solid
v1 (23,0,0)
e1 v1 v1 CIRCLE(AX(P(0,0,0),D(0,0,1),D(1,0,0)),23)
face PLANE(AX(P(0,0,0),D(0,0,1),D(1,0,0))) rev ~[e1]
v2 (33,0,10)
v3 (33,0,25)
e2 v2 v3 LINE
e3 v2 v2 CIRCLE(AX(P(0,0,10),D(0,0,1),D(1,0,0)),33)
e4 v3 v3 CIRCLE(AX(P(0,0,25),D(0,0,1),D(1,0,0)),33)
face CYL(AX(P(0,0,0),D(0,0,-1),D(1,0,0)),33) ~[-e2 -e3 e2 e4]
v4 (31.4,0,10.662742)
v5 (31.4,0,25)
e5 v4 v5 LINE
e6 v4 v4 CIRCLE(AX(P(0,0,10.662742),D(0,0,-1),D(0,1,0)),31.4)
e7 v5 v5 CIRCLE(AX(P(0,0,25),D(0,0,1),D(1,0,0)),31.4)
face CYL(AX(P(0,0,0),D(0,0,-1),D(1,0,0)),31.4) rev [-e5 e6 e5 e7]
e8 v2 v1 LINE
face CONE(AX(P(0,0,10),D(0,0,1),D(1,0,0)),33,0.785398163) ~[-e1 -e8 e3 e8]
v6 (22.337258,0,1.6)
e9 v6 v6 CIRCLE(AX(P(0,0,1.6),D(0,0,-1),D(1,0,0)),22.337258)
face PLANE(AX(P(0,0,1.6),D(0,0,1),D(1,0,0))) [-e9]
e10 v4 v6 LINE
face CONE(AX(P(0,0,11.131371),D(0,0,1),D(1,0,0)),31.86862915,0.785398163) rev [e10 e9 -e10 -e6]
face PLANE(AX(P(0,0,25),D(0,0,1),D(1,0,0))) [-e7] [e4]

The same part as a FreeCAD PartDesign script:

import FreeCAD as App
import Part
import Sketcher


def edges_at(feature, points):
    """Names of the edges that pass closest to the given points."""
    edges = feature.Shape.Edges
    near = lambda p: min(range(len(edges)), key=lambda i: edges[i].distToShape(Part.Vertex(*p))[0])
    return sorted({f"Edge{near(p) + 1}" for p in points})


def faces_at(feature, points):
    """Names of the faces that lie closest to the given points."""
    faces = feature.Shape.Faces
    near = lambda p: min(range(len(faces)), key=lambda i: faces[i].distToShape(Part.Vertex(*p))[0])
    return sorted({f"Face{near(p) + 1}" for p in points})

doc = App.newDocument("Part")
body = doc.addObject("PartDesign::Body", "Body")

sketch1 = body.newObject("Sketcher::SketchObject", "Sketch")
sketch1.AttachmentSupport = (doc.getObject("XY_Plane"), [""])
sketch1.MapMode = "FlatFace"
sketch1.addGeometry(Part.Circle(App.Vector(0, 0, 0), App.Vector(0, 0, 1), 33), False)
sketch1.addConstraint(Sketcher.Constraint("Coincident", 0, 3, -1, 1))
sketch1.addConstraint(Sketcher.Constraint("Diameter", 0, 66.0))
pad1 = body.newObject("PartDesign::Pad", "Pad")
pad1.Profile = sketch1
pad1.Length = 25
doc.recompute()

chamfer = body.newObject("PartDesign::Chamfer", "Chamfer")
chamfer.Base = (pad1, edges_at(pad1, [(-33, 0, 0)]))
chamfer.Size = 10
doc.recompute()

thickness = body.newObject("PartDesign::Thickness", "Thickness")
thickness.Base = (chamfer, faces_at(chamfer, [(0, 0, 25)]))
thickness.Value = 1.6
thickness.Reversed = True
thickness.Join = "Arc"

doc.recompute()
